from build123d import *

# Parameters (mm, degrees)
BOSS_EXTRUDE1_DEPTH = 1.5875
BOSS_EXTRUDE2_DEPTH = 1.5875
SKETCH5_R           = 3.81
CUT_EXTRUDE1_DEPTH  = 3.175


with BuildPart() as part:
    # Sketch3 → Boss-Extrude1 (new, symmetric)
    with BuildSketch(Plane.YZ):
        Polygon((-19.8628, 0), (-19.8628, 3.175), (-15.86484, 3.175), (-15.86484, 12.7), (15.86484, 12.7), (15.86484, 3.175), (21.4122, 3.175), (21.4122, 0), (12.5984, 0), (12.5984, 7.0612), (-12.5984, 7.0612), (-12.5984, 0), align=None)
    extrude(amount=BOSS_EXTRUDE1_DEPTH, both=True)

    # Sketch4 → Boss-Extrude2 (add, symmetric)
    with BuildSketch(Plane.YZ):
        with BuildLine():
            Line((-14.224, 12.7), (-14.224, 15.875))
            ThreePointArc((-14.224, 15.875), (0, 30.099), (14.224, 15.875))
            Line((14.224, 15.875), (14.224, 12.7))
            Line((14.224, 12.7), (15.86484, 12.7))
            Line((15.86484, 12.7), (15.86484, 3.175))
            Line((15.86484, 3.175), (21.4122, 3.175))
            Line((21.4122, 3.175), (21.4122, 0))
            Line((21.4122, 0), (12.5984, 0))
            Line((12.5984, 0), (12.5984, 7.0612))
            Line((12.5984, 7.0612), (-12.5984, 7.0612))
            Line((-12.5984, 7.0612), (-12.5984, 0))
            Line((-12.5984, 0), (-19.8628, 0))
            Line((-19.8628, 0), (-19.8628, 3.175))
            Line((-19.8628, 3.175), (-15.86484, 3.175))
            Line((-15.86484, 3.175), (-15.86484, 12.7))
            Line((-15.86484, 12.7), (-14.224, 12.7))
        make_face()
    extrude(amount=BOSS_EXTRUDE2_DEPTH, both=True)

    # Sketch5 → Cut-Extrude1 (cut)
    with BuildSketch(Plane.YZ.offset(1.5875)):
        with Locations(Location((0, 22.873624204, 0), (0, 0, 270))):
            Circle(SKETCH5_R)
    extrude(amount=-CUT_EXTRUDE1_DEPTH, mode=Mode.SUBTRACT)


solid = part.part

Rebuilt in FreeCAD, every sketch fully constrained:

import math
import FreeCAD as App
import Part
import Sketcher

V = App.Vector
Q = App.Units.Quantity


def add_polygon(sketch, points):
    """Adds a closed chain of lines whose ends are joined by coincident constraints."""
    first, n = sketch.GeometryCount, len(points)
    for a, b in zip(points, points[1:] + points[:1]):
        sketch.addGeometry(Part.LineSegment(App.Vector(*a, 0), App.Vector(*b, 0)), False)
    for i in range(n):
        sketch.addConstraint(Sketcher.Constraint("Coincident", first + i, 2, first + (i + 1) % n, 1))

doc = App.newDocument("Part")
body = doc.addObject("PartDesign::Body", "Body")

sketch1 = body.newObject("Sketcher::SketchObject", "Sketch")
sketch1.AttachmentSupport = (doc.getObject("YZ_Plane"), [""])
sketch1.MapMode = "FlatFace"
add_polygon(sketch1, [(-19.9, 3.2), (-19.9, 0), (-12.6, 0), (-12.6, 7.1), (12.6, 7.1), (12.6, 0), (21.4, 0), (21.4, 3.2), (15.9, 3.2), (15.9, 12.7), (-15.9, 12.7), (-15.9, 3.2)])
sketch1.addConstraint(Sketcher.Constraint("Vertical", 0))
sketch1.addConstraint(Sketcher.Constraint("Horizontal", 1))
sketch1.addConstraint(Sketcher.Constraint("Vertical", 2))
sketch1.addConstraint(Sketcher.Constraint("Horizontal", 3))
sketch1.addConstraint(Sketcher.Constraint("Vertical", 4))
sketch1.addConstraint(Sketcher.Constraint("Horizontal", 5))
sketch1.addConstraint(Sketcher.Constraint("Vertical", 6))
sketch1.addConstraint(Sketcher.Constraint("Horizontal", 7))
sketch1.addConstraint(Sketcher.Constraint("Vertical", 8))
sketch1.addConstraint(Sketcher.Constraint("Horizontal", 9))
sketch1.addConstraint(Sketcher.Constraint("Vertical", 10))
sketch1.addConstraint(Sketcher.Constraint("Horizontal", 11))
sketch1.addConstraint(Sketcher.Constraint("Symmetric", 1, 2, 4, 2, -1, 1))
sketch1.addConstraint(Sketcher.Constraint("Symmetric", 7, 2, 10, 2, -2))
sketch1.addConstraint(Sketcher.Constraint("PointOnObject", 0, 2, -1))
sketch1.addConstraint(Sketcher.Constraint("DistanceY", -1, 1, 8, 2, Q("0.5 in")))
sketch1.addConstraint(Sketcher.Constraint("DistanceX", 1, 1, 1, 2, Q("0.286 in")))
sketch1.addConstraint(Sketcher.Constraint("DistanceX", 3, 1, 3, 2, Q("0.992 in")))
sketch1.addConstraint(Sketcher.Constraint("DistanceX", 5, 1, 5, 2, Q("0.347 in")))
sketch1.addConstraint(Sketcher.Constraint("DistanceY", 0, 2, 0, 1, Q("0.125 in")))
sketch1.addConstraint(Sketcher.Constraint("DistanceY", 2, 1, 2, 2, Q("0.278 in")))
sketch1.addConstraint(Sketcher.Constraint("DistanceX", 7, 2, 7, 1, Q("0.2184 in")))
pad1 = body.newObject("PartDesign::Pad", "Pad")
pad1.Profile = sketch1
pad1.Length = Q("0.125 in")
pad1.Midplane = True

sketch2 = body.newObject("Sketcher::SketchObject", "Sketch001")
sketch2.AttachmentSupport = (doc.getObject("YZ_Plane"), [""])
sketch2.MapMode = "FlatFace"
sketch2.addGeometry(Part.LineSegment(V(-14.2, 15.9, 0), V(-14.2, 12.7, 0)), False)
sketch2.addGeometry(Part.LineSegment(V(-14.2, 12.7, 0), V(-15.9, 12.7, 0)), False)
sketch2.addGeometry(Part.LineSegment(V(-15.9, 12.7, 0), V(-15.9, 3.2, 0)), False)
sketch2.addGeometry(Part.LineSegment(V(-15.9, 3.2, 0), V(-19.9, 3.2, 0)), False)
sketch2.addGeometry(Part.LineSegment(V(-19.9, 3.2, 0), V(-19.9, 0, 0)), False)
sketch2.addGeometry(Part.LineSegment(V(-19.9, 0, 0), V(-12.6, 0, 0)), False)
sketch2.addGeometry(Part.LineSegment(V(-12.6, 0, 0), V(-12.6, 7.1, 0)), False)
sketch2.addGeometry(Part.LineSegment(V(-12.6, 7.1, 0), V(12.6, 7.1, 0)), False)
sketch2.addGeometry(Part.LineSegment(V(12.6, 7.1, 0), V(12.6, 0, 0)), False)
sketch2.addGeometry(Part.LineSegment(V(12.6, 0, 0), V(21.4, 0, 0)), False)
sketch2.addGeometry(Part.LineSegment(V(21.4, 0, 0), V(21.4, 3.2, 0)), False)
sketch2.addGeometry(Part.LineSegment(V(21.4, 3.2, 0), V(15.9, 3.2, 0)), False)
sketch2.addGeometry(Part.LineSegment(V(15.9, 3.2, 0), V(15.9, 12.7, 0)), False)
sketch2.addGeometry(Part.LineSegment(V(15.9, 12.7, 0), V(14.2, 12.7, 0)), False)
sketch2.addGeometry(Part.LineSegment(V(14.2, 12.7, 0), V(14.2, 15.9, 0)), False)
sketch2.addGeometry(Part.ArcOfCircle(Part.Circle(V(0, 15.9, 0), V(0, 0, 1), 14.2), math.radians(0), math.radians(180)), False)
sketch2.addConstraint(Sketcher.Constraint("Coincident", 0, 2, 1, 1))
sketch2.addConstraint(Sketcher.Constraint("Coincident", 1, 2, 2, 1))
sketch2.addConstraint(Sketcher.Constraint("Coincident", 2, 2, 3, 1))
sketch2.addConstraint(Sketcher.Constraint("Coincident", 3, 2, 4, 1))
sketch2.addConstraint(Sketcher.Constraint("Coincident", 4, 2, 5, 1))
sketch2.addConstraint(Sketcher.Constraint("Coincident", 5, 2, 6, 1))
sketch2.addConstraint(Sketcher.Constraint("Coincident", 6, 2, 7, 1))
sketch2.addConstraint(Sketcher.Constraint("Coincident", 7, 2, 8, 1))
sketch2.addConstraint(Sketcher.Constraint("Coincident", 8, 2, 9, 1))
sketch2.addConstraint(Sketcher.Constraint("Coincident", 9, 2, 10, 1))
sketch2.addConstraint(Sketcher.Constraint("Coincident", 10, 2, 11, 1))
sketch2.addConstraint(Sketcher.Constraint("Coincident", 11, 2, 12, 1))
sketch2.addConstraint(Sketcher.Constraint("Coincident", 12, 2, 13, 1))
sketch2.addConstraint(Sketcher.Constraint("Coincident", 13, 2, 14, 1))
sketch2.addConstraint(Sketcher.Constraint("Tangent", 14, 2, 15, 1))
sketch2.addConstraint(Sketcher.Constraint("Tangent", 15, 2, 0, 1))
sketch2.addConstraint(Sketcher.Constraint("Vertical", 0))
sketch2.addConstraint(Sketcher.Constraint("Horizontal", 1))
sketch2.addConstraint(Sketcher.Constraint("Vertical", 2))
sketch2.addConstraint(Sketcher.Constraint("Horizontal", 3))
sketch2.addConstraint(Sketcher.Constraint("Vertical", 4))
sketch2.addConstraint(Sketcher.Constraint("Horizontal", 5))
sketch2.addConstraint(Sketcher.Constraint("Vertical", 6))
sketch2.addConstraint(Sketcher.Constraint("Horizontal", 7))
sketch2.addConstraint(Sketcher.Constraint("Vertical", 8))
sketch2.addConstraint(Sketcher.Constraint("Horizontal", 9))
sketch2.addConstraint(Sketcher.Constraint("Vertical", 10))
sketch2.addConstraint(Sketcher.Constraint("Horizontal", 11))
sketch2.addConstraint(Sketcher.Constraint("Vertical", 12))
sketch2.addConstraint(Sketcher.Constraint("Horizontal", 13))
sketch2.addConstraint(Sketcher.Constraint("Vertical", 14))
sketch2.addConstraint(Sketcher.Constraint("Symmetric", 5, 2, 8, 2, -1, 1))
sketch2.addConstraint(Sketcher.Constraint("Symmetric", 2, 2, 11, 2, -2))
sketch2.addConstraint(Sketcher.Constraint("Symmetric", 0, 2, 13, 2, -2))
sketch2.addConstraint(Sketcher.Constraint("PointOnObject", 4, 2, -1))
sketch2.addConstraint(Sketcher.Constraint("Equal", 0, 4))
sketch2.addConstraint(Sketcher.Constraint("Radius", 15, Q("0.56 in")))
sketch2.addConstraint(Sketcher.Constraint("DistanceY", -1, 1, 0, 2, Q("0.5 in")))
sketch2.addConstraint(Sketcher.Constraint("DistanceX", 5, 1, 5, 2, Q("0.286 in")))
sketch2.addConstraint(Sketcher.Constraint("DistanceX", 7, 1, 7, 2, Q("0.992 in")))
sketch2.addConstraint(Sketcher.Constraint("DistanceX", 9, 1, 9, 2, Q("0.347 in")))
sketch2.addConstraint(Sketcher.Constraint("DistanceY", 0, 2, 0, 1, Q("0.125 in")))
sketch2.addConstraint(Sketcher.Constraint("DistanceY", 6, 1, 6, 2, Q("0.278 in")))
sketch2.addConstraint(Sketcher.Constraint("DistanceX", 1, 2, 1, 1, Q("0.0646 in")))
pad2 = body.newObject("PartDesign::Pad", "Pad001")
pad2.Profile = sketch2
pad2.Length = Q("0.125 in")
pad2.Midplane = True

sketch3 = body.newObject("Sketcher::SketchObject", "Sketch002")
sketch3.AttachmentSupport = (doc.getObject("YZ_Plane"), [""])
sketch3.MapMode = "FlatFace"
sketch3.AttachmentOffset = App.Placement(V(0, 0, 0.0625 * 25.4), App.Rotation())
sketch3.addGeometry(Part.Circle(V(0, 22.9, 0), V(0, 0, 1), 3.8), False)
sketch3.addConstraint(Sketcher.Constraint("PointOnObject", 0, 3, -2))
sketch3.addConstraint(Sketcher.Constraint("Diameter", 0, Q("0.3 in")))
sketch3.addConstraint(Sketcher.Constraint("DistanceY", -1, 1, 0, 3, Q("22.873624 mm")))
pocket1 = body.newObject("PartDesign::Pocket", "Pocket")
pocket1.Profile = sketch3
pocket1.Length = Q("0.125 in")

doc.recompute()
